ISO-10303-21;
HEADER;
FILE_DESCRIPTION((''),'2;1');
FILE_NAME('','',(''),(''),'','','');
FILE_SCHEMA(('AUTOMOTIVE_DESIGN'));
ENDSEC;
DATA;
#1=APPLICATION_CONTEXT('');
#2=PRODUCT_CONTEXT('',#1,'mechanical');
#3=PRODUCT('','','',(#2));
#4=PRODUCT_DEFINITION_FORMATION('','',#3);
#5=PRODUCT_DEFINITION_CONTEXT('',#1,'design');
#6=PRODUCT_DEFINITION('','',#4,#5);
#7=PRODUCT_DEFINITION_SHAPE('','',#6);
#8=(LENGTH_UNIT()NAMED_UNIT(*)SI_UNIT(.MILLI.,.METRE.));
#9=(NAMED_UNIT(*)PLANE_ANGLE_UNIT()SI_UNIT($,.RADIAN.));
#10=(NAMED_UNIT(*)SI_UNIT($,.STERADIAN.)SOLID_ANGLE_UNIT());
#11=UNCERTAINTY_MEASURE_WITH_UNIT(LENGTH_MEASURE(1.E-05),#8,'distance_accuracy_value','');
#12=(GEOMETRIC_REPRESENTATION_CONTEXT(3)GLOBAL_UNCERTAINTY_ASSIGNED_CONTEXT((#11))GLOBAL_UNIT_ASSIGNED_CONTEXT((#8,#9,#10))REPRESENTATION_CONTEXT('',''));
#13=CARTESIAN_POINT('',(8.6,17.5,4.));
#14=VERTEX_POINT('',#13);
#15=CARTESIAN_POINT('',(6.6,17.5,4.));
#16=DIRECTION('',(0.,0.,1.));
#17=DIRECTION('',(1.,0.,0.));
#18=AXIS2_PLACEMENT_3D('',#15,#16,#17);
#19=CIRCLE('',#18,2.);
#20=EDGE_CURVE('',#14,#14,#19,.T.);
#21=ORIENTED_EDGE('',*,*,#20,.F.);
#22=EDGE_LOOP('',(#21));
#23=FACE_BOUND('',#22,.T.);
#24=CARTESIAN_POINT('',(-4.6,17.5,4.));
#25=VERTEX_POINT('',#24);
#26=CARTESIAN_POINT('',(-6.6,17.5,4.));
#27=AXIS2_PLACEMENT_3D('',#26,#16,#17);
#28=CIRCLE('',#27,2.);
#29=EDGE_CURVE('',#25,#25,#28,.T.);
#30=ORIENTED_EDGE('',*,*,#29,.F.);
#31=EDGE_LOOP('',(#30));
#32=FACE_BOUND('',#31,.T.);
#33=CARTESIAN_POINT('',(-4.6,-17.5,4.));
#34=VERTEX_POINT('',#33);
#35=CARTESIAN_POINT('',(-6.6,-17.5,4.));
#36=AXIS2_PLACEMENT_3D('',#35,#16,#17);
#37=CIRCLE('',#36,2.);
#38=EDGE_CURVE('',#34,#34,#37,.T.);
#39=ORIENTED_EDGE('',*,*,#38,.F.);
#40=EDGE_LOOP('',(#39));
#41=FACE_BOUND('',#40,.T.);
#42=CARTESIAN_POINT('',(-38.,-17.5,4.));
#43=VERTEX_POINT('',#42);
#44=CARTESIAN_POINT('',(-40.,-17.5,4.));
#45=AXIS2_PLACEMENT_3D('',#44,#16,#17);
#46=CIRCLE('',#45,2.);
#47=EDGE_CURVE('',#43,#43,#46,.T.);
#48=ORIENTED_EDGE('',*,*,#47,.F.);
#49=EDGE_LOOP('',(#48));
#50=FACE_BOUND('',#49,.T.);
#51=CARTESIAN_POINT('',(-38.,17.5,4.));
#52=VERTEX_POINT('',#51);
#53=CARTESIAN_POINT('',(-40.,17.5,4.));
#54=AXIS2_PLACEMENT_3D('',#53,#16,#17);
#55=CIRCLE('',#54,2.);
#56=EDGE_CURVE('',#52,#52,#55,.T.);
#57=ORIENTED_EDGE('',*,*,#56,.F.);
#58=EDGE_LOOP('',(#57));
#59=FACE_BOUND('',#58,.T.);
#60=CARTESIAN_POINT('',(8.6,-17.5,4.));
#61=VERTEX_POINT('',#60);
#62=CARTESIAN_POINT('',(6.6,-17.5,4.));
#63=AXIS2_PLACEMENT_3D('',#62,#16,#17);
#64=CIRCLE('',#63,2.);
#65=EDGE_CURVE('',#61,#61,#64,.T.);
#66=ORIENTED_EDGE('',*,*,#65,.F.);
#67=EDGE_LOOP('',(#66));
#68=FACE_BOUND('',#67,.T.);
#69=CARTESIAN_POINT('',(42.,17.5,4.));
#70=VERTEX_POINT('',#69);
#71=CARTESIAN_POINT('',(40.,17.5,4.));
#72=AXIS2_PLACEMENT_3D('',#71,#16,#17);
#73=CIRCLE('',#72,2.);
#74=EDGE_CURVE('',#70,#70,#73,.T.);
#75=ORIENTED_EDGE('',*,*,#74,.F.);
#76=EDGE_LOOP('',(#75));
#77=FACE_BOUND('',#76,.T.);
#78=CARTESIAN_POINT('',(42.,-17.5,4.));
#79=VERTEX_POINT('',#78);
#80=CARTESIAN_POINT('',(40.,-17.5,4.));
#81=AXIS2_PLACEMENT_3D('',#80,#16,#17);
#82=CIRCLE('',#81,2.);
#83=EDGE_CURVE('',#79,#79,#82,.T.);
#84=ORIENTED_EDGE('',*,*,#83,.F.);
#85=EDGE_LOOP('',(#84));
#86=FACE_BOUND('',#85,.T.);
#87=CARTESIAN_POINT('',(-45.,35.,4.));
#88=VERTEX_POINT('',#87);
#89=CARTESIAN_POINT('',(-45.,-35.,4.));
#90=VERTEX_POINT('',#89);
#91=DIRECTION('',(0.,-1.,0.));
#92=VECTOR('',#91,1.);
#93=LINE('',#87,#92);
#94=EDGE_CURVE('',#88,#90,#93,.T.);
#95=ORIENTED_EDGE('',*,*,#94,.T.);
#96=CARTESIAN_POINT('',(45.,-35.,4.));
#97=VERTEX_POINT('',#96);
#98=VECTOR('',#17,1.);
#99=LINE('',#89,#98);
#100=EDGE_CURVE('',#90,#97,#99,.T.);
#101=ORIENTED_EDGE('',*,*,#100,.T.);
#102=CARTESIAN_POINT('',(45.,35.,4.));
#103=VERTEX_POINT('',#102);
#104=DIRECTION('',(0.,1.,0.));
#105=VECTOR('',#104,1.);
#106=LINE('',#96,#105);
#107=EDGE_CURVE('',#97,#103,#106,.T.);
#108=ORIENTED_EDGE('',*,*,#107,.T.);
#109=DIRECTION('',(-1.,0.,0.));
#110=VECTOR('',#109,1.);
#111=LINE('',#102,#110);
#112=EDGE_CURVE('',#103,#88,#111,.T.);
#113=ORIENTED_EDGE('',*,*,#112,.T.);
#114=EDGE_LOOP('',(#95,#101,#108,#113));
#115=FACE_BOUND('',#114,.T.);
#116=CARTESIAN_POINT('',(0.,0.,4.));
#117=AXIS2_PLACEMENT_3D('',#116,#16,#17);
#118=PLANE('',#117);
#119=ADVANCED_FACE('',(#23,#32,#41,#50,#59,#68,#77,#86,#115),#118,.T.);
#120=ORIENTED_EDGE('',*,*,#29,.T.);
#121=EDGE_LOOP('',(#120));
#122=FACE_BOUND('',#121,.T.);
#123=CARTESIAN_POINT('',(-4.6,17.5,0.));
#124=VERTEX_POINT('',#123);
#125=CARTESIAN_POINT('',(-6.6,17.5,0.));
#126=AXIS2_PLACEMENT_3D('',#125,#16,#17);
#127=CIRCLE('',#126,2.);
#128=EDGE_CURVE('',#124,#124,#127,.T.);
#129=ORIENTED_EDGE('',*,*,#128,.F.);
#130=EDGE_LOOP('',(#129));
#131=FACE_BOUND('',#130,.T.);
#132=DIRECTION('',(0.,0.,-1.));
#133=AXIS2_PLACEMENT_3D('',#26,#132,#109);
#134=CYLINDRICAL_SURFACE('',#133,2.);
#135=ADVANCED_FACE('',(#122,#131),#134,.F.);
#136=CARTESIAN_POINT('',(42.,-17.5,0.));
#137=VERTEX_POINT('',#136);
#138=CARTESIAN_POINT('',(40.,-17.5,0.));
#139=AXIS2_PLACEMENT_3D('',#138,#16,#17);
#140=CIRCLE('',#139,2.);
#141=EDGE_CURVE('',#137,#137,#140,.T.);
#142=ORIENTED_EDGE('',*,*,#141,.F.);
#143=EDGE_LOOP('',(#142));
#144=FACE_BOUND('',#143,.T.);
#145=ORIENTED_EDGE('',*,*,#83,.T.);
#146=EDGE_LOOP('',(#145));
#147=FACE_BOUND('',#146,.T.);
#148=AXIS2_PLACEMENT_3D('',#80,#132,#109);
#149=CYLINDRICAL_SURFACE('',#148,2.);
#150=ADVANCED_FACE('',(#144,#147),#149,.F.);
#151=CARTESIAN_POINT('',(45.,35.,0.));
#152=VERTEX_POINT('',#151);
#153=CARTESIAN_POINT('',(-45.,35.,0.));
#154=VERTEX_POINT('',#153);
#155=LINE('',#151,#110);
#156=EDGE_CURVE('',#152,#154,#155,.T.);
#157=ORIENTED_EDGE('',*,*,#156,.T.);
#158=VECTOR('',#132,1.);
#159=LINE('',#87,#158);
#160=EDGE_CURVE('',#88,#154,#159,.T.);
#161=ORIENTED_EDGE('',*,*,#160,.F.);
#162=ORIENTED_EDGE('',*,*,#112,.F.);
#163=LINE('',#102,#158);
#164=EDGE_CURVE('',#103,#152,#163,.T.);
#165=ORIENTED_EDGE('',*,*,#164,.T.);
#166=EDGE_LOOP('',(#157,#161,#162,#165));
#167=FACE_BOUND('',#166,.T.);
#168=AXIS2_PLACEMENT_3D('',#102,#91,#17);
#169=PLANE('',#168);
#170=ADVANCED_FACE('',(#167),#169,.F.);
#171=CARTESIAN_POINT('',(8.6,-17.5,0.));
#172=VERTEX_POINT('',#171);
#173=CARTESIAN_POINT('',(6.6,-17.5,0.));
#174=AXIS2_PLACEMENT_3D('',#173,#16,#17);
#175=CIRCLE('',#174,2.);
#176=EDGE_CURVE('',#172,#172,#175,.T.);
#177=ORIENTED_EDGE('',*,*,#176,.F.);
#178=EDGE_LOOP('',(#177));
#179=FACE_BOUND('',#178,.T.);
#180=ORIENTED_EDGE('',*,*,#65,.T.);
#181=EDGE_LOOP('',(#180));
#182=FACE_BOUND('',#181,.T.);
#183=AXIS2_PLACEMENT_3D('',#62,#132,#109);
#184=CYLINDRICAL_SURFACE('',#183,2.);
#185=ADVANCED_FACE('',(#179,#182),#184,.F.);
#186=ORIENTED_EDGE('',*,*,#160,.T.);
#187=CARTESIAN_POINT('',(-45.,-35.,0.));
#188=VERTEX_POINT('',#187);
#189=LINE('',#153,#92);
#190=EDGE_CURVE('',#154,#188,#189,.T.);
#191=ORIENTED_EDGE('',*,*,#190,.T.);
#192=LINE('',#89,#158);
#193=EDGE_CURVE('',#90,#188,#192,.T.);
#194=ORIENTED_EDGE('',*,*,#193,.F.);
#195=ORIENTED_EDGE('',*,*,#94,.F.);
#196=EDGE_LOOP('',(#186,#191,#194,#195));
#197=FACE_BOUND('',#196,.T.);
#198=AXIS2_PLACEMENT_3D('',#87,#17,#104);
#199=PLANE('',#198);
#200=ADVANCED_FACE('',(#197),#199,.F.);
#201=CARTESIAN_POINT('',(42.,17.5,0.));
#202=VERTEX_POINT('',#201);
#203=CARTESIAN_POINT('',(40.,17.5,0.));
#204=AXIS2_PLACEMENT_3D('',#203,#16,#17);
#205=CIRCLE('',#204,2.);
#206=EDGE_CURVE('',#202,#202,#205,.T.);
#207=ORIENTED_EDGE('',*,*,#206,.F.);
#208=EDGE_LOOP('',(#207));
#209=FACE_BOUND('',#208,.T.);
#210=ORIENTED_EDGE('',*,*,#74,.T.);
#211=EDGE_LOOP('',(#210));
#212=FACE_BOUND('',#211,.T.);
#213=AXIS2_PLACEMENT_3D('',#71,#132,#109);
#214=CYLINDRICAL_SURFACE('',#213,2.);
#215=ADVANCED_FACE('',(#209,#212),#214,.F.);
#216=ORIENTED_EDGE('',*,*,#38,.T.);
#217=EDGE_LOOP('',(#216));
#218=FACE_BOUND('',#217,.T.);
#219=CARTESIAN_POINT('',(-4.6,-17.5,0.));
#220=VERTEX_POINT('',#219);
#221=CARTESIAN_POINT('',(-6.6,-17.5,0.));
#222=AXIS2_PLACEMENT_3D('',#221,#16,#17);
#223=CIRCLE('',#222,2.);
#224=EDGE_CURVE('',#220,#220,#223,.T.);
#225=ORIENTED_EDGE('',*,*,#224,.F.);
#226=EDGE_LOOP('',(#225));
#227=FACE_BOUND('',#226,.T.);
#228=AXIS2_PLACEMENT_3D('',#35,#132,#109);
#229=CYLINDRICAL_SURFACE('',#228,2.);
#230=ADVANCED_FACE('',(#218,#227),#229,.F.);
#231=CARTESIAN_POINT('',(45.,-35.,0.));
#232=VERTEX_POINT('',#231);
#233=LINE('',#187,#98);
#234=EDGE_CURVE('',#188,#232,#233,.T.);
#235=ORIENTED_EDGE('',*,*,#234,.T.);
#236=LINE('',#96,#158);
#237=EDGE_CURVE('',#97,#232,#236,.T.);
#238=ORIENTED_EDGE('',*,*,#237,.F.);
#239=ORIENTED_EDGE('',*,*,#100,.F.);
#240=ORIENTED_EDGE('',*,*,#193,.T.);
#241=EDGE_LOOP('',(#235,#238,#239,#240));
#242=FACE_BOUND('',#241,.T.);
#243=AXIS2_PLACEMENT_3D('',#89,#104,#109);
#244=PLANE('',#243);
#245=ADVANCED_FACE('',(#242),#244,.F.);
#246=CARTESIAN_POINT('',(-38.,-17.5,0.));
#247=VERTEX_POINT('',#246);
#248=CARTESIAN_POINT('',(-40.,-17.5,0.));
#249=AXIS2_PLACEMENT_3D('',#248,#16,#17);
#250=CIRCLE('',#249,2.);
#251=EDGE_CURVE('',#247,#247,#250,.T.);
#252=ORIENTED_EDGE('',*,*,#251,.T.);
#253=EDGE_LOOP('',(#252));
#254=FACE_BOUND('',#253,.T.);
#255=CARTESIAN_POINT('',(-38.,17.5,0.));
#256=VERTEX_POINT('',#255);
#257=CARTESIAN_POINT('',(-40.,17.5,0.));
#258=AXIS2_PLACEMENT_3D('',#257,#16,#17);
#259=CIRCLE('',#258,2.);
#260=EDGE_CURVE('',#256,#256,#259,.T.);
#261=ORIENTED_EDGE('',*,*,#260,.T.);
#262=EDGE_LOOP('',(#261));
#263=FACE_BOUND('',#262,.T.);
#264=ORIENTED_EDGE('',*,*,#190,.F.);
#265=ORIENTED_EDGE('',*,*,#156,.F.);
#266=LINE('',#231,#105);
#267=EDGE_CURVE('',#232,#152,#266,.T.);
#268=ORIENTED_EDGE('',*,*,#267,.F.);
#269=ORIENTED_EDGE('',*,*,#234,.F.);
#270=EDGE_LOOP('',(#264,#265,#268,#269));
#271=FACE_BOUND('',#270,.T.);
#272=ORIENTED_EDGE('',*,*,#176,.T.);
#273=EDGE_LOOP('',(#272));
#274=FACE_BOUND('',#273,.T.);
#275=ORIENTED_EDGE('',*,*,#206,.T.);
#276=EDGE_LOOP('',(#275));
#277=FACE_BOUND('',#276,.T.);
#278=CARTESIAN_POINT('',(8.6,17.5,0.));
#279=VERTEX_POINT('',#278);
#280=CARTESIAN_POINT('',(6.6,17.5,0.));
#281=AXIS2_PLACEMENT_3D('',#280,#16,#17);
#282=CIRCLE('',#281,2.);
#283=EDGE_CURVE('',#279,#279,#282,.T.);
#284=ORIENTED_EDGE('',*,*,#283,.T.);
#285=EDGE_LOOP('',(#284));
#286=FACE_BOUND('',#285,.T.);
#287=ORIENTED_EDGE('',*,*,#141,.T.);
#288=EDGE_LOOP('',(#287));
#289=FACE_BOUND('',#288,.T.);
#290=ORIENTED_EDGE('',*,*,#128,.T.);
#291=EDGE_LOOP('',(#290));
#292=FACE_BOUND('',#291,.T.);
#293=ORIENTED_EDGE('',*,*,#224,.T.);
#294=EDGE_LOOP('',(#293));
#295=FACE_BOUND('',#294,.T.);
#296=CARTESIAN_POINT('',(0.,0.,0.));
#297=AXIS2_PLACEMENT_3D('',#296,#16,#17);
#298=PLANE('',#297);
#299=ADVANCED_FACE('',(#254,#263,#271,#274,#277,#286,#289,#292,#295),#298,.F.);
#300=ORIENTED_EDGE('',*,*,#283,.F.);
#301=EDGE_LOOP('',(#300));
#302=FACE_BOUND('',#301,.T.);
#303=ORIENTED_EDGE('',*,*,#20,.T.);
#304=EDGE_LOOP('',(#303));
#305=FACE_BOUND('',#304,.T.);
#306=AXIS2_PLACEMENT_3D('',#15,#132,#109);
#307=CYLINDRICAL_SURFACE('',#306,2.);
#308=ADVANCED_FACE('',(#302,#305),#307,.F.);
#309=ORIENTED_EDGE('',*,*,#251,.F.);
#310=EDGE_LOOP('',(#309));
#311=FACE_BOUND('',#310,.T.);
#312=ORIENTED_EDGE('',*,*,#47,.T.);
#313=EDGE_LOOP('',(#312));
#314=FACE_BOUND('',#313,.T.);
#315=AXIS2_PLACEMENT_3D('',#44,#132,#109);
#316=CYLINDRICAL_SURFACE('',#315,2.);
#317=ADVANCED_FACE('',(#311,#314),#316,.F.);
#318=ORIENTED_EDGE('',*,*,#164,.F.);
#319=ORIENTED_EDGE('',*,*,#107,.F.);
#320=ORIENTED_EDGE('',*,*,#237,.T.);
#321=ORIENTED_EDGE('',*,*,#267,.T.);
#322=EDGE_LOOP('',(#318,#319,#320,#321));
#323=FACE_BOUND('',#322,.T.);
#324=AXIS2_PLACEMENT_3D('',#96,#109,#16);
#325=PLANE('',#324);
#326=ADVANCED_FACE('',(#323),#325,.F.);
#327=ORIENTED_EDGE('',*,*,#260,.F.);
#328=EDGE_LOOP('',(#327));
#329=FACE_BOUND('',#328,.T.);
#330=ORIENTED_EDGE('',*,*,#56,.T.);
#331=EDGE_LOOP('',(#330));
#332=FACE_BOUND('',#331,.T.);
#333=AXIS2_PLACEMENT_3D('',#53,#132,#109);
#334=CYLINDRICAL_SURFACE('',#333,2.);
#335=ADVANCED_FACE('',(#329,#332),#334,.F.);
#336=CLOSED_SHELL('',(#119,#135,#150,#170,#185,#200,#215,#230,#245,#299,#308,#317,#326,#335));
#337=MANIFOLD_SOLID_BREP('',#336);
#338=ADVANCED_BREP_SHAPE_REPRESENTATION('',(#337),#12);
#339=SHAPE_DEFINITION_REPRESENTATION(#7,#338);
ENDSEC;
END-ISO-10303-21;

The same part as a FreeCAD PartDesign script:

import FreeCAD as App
import Part
import Sketcher

V = App.Vector

doc = App.newDocument("Part")
body = doc.addObject("PartDesign::Body", "Body")

sketch1 = body.newObject("Sketcher::SketchObject", "Sketch")
sketch1.AttachmentSupport = (doc.getObject("XY_Plane"), [""])
sketch1.MapMode = "FlatFace"
sketch1.addGeometry(Part.LineSegment(V(-45, 35, 0), V(-45, -35, 0)), False)
sketch1.addGeometry(Part.LineSegment(V(-45, -35, 0), V(45, -35, 0)), False)
sketch1.addGeometry(Part.LineSegment(V(45, -35, 0), V(45, 35, 0)), False)
sketch1.addGeometry(Part.LineSegment(V(45, 35, 0), V(-45, 35, 0)), False)
sketch1.addGeometry(Part.Circle(V(-40, -17.5, 0), V(0, 0, 1), 2), False)
sketch1.addGeometry(Part.Circle(V(-6.6, -17.5, 0), V(0, 0, 1), 2), False)
sketch1.addGeometry(Part.Circle(V(6.6, -17.5, 0), V(0, 0, 1), 2), False)
sketch1.addGeometry(Part.Circle(V(40, -17.5, 0), V(0, 0, 1), 2), False)
sketch1.addGeometry(Part.Circle(V(-40, 17.5, 0), V(0, 0, 1), 2), False)
sketch1.addGeometry(Part.Circle(V(-6.6, 17.5, 0), V(0, 0, 1), 2), False)
sketch1.addGeometry(Part.Circle(V(6.6, 17.5, 0), V(0, 0, 1), 2), False)
sketch1.addGeometry(Part.Circle(V(40, 17.5, 0), V(0, 0, 1), 2), False)
sketch1.addConstraint(Sketcher.Constraint("Coincident", 0, 2, 1, 1))
sketch1.addConstraint(Sketcher.Constraint("Coincident", 1, 2, 2, 1))
sketch1.addConstraint(Sketcher.Constraint("Coincident", 2, 2, 3, 1))
sketch1.addConstraint(Sketcher.Constraint("Coincident", 3, 2, 0, 1))
sketch1.addConstraint(Sketcher.Constraint("Vertical", 0))
sketch1.addConstraint(Sketcher.Constraint("Horizontal", 1))
sketch1.addConstraint(Sketcher.Constraint("Vertical", 2))
sketch1.addConstraint(Sketcher.Constraint("Horizontal", 3))
sketch1.addConstraint(Sketcher.Constraint("Equal", 4, 5))
sketch1.addConstraint(Sketcher.Constraint("Equal", 5, 6))
sketch1.addConstraint(Sketcher.Constraint("Equal", 6, 7))
sketch1.addConstraint(Sketcher.Constraint("Equal", 7, 8))
sketch1.addConstraint(Sketcher.Constraint("Equal", 8, 9))
sketch1.addConstraint(Sketcher.Constraint("Equal", 9, 10))
sketch1.addConstraint(Sketcher.Constraint("Equal", 10, 11))
sketch1.addConstraint(Sketcher.Constraint("Symmetric", 7, 3, 8, 3, -1, 1))
sketch1.addConstraint(Sketcher.Constraint("Symmetric", 6, 3, 9, 3, -1, 1))
sketch1.addConstraint(Sketcher.Constraint("Symmetric", 5, 3, 10, 3, -1, 1))
sketch1.addConstraint(Sketcher.Constraint("Symmetric", 4, 3, 11, 3, -1, 1))
sketch1.addConstraint(Sketcher.Constraint("Symmetric", 0, 2, 2, 2, -1, 1))
sketch1.addConstraint(Sketcher.Constraint("Symmetric", 5, 3, 6, 3, -2))
sketch1.addConstraint(Sketcher.Constraint("Symmetric", 4, 3, 7, 3, -2))
sketch1.addConstraint(Sketcher.Constraint("Horizontal", 4, 3, 5, 3))
sketch1.addConstraint(Sketcher.Constraint("Diameter", 4, 4.0))
sketch1.addConstraint(Sketcher.Constraint("DistanceX", 1, 1, 1, 2, 90.0))
sketch1.addConstraint(Sketcher.Constraint("DistanceY", 0, 2, 0, 1, 70.0))
sketch1.addConstraint(Sketcher.Constraint("DistanceX", 4, 3, -1, 1, 40.0))
sketch1.addConstraint(Sketcher.Constraint("DistanceY", 4, 3, 8, 3, 35.0))
sketch1.addConstraint(Sketcher.Constraint("DistanceX", 5, 3, -1, 1, 6.6))
pad1 = body.newObject("PartDesign::Pad", "Pad")
pad1.Profile = sketch1
pad1.Length = 4

doc.recompute()
